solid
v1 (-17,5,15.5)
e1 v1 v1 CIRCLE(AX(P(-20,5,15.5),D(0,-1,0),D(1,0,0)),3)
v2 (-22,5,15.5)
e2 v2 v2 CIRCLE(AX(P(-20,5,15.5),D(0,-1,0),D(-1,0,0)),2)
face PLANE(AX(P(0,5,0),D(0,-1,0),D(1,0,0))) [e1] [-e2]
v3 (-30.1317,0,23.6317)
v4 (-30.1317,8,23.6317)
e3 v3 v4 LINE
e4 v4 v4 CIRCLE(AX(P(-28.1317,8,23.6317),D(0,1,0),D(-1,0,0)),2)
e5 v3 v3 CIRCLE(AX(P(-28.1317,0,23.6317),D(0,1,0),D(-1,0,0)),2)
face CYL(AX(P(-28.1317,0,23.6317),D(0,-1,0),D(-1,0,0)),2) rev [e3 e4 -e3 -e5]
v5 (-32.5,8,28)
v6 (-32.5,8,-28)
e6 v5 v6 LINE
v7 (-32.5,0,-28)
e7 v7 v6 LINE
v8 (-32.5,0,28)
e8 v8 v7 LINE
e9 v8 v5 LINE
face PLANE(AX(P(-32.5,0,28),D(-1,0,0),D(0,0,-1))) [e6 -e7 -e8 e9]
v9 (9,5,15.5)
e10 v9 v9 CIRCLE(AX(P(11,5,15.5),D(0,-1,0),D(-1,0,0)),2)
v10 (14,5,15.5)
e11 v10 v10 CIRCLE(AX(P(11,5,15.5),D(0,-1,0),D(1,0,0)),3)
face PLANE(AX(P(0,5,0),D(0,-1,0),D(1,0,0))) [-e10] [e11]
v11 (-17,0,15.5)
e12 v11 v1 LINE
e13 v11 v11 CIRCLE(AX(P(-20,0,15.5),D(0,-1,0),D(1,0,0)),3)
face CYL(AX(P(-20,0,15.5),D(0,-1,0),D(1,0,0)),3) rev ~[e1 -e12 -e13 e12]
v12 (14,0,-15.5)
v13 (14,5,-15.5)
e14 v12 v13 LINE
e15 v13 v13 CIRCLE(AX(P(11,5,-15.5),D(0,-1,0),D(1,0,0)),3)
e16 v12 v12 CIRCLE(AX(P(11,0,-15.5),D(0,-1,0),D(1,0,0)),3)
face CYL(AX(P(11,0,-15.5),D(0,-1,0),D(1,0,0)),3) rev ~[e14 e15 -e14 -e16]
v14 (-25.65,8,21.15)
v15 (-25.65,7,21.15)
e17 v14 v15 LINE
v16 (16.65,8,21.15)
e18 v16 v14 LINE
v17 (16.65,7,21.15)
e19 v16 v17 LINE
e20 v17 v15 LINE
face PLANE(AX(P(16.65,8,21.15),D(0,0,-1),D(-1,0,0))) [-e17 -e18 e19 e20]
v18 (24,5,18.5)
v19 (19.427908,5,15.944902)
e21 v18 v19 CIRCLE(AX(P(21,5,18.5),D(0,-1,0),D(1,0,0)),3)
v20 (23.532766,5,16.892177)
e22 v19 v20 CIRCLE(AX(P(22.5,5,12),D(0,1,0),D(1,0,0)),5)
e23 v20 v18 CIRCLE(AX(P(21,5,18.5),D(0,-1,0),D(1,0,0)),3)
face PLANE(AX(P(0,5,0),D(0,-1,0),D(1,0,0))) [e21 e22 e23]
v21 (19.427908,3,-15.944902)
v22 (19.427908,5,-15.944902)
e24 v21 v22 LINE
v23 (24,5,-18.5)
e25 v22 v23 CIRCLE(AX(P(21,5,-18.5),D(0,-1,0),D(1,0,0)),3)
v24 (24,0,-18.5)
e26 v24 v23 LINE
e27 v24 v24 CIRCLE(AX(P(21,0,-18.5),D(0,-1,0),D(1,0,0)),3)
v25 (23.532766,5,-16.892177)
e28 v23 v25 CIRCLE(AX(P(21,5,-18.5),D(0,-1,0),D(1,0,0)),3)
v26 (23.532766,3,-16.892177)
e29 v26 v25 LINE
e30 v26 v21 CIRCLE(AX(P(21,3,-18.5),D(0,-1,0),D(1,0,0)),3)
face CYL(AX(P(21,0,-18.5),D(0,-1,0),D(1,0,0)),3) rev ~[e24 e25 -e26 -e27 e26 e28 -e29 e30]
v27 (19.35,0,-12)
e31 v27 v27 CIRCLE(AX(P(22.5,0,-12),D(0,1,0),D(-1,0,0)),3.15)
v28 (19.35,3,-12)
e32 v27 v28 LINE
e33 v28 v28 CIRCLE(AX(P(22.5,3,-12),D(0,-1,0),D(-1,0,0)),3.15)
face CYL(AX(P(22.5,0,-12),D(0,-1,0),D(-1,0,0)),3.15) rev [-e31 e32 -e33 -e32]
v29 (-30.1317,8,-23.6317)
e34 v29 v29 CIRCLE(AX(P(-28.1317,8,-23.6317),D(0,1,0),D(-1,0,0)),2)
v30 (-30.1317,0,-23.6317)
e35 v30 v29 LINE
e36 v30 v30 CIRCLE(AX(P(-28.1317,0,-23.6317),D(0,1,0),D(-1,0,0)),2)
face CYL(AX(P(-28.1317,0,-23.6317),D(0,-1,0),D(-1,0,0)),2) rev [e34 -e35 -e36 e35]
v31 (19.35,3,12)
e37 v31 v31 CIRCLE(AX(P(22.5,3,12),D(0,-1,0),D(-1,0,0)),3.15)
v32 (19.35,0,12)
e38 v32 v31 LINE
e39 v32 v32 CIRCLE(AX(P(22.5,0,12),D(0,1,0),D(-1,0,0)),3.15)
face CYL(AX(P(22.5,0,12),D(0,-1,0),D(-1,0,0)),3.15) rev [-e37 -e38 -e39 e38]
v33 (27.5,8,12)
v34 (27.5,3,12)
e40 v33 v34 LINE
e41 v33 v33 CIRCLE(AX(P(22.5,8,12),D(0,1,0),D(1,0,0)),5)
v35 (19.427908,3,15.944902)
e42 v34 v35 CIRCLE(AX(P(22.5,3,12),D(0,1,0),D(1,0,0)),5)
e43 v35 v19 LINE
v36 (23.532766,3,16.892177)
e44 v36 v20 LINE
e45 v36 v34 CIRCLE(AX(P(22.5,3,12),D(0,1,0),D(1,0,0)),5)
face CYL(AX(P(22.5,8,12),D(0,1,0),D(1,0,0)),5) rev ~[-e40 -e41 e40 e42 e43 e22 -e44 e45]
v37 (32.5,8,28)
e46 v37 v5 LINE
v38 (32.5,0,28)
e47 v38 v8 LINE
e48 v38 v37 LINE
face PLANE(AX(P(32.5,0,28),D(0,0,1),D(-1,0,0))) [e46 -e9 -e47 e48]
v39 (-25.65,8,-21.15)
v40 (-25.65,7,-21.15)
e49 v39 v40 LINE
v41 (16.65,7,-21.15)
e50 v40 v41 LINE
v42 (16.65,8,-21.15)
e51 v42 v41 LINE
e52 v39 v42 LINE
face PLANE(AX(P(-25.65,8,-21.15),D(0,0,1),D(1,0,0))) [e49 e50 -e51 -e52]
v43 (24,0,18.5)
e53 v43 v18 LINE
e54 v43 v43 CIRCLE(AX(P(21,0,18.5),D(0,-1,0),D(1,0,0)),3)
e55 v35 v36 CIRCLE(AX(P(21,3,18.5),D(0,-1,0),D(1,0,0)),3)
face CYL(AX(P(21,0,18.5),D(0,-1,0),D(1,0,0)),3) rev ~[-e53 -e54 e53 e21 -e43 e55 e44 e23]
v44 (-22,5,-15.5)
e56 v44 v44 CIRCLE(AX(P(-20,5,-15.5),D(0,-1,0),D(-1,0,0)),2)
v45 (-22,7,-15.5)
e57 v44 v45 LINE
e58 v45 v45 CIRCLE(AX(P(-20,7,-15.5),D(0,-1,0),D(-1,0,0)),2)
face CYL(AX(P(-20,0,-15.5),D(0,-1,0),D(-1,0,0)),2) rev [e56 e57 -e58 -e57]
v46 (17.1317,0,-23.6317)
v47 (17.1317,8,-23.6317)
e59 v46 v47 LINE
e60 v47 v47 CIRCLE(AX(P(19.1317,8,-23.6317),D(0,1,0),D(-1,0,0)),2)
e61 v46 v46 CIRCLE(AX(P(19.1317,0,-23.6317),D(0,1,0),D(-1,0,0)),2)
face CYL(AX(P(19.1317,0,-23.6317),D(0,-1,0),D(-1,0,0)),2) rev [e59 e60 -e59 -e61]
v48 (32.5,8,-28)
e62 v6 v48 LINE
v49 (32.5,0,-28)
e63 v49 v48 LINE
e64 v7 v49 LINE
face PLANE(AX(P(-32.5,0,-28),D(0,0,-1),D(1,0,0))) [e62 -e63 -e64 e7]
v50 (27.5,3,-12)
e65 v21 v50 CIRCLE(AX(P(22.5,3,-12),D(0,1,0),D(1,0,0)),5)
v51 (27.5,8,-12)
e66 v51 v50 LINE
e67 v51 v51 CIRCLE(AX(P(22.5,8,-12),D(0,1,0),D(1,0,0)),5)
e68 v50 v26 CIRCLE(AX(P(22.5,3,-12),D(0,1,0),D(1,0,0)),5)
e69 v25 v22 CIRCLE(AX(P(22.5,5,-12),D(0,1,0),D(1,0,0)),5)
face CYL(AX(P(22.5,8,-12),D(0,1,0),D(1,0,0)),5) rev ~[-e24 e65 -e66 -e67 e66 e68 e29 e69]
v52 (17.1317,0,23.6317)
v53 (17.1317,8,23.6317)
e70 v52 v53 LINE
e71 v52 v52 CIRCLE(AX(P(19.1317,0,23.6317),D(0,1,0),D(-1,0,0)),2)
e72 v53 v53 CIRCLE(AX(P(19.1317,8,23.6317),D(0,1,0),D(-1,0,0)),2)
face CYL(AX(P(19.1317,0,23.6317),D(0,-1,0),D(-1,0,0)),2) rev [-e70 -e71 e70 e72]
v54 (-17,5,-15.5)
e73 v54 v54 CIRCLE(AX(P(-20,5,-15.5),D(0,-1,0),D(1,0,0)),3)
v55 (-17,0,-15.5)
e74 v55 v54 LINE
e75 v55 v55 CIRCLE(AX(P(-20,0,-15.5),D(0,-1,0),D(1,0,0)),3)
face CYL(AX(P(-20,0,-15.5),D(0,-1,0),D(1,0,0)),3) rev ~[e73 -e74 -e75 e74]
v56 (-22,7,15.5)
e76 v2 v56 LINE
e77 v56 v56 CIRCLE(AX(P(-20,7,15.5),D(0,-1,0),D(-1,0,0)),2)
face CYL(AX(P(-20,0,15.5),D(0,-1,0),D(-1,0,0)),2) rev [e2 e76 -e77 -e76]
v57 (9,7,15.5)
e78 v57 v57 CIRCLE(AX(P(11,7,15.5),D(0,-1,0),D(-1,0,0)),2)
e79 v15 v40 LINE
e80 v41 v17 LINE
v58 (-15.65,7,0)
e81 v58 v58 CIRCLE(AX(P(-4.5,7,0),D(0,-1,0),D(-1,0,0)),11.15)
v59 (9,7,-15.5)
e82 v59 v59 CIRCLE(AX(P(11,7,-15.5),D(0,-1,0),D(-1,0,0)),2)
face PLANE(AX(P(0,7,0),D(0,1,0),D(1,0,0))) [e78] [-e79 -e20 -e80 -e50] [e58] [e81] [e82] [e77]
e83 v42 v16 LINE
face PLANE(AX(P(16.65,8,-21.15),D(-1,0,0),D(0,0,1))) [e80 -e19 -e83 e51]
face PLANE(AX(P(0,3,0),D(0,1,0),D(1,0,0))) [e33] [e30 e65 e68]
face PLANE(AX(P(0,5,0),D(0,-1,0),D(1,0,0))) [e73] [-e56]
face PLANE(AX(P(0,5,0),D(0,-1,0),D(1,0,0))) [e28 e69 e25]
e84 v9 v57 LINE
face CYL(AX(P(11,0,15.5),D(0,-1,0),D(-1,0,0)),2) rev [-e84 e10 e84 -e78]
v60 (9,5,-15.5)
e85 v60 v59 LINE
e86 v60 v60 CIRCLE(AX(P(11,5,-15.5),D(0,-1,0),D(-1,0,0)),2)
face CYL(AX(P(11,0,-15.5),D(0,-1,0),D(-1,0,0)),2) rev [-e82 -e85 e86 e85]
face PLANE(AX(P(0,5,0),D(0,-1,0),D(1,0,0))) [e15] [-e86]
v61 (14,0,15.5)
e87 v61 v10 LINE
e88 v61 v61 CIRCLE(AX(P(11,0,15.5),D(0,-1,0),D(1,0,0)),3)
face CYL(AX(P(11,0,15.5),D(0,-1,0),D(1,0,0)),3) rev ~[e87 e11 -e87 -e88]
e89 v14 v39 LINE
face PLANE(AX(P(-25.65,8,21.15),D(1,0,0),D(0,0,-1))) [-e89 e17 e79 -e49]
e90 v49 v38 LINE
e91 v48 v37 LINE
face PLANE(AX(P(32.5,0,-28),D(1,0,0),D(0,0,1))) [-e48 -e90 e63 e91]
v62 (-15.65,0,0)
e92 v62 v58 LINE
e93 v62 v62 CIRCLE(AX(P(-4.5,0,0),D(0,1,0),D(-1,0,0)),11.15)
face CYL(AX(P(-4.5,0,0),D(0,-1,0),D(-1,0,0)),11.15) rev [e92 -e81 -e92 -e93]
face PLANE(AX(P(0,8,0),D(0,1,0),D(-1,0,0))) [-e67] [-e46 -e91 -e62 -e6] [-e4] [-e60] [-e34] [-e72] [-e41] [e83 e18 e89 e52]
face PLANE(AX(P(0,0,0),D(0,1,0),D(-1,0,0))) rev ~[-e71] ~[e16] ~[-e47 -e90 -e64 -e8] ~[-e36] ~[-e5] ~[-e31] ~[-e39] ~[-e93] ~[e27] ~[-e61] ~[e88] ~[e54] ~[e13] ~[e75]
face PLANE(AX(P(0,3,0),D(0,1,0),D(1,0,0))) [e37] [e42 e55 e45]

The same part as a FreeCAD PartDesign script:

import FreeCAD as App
import Part
import Sketcher


def add_polygon(sketch, points):
    """Adds a closed chain of lines whose ends are joined by coincident constraints."""
    first, n = sketch.GeometryCount, len(points)
    for a, b in zip(points, points[1:] + points[:1]):
        sketch.addGeometry(Part.LineSegment(App.Vector(*a, 0), App.Vector(*b, 0)), False)
    for i in range(n):
        sketch.addConstraint(Sketcher.Constraint("Coincident", first + i, 2, first + (i + 1) % n, 1))

doc = App.newDocument("Part")
body = doc.addObject("PartDesign::Body", "Body")

# Sketch on XZ plane
sketch1 = doc.addObject("Sketcher::SketchObject", "Sketch")
body.addObject(sketch1)
sketch1.AttachmentSupport = (doc.XZ_Plane, [""])
sketch1.MapMode = "FlatFace"
add_polygon(sketch1, [(-32.5, 28), (32.5, 28), (32.5, -28), (-32.5, -28)])  # lines 0-3
sketch1.addGeometry(Part.Circle(App.Vector(19.1317, -23.6317, 0), App.Vector(0, 0, 1), 2), False)  # 4
sketch1.addGeometry(Part.Circle(App.Vector(11, -15.5, 0), App.Vector(0, 0, 1), 2), False)  # 5
sketch1.addGeometry(Part.Circle(App.Vector(22.5, -12, 0), App.Vector(0, 0, 1), 3.15), False)  # 6
sketch1.addGeometry(Part.Circle(App.Vector(-28.1317, -23.6317, 0), App.Vector(0, 0, 1), 2), False)  # 7
sketch1.addGeometry(Part.Circle(App.Vector(-20, -15.5, 0), App.Vector(0, 0, 1), 2), False)  # 8
sketch1.addGeometry(Part.Circle(App.Vector(22.5, 12, 0), App.Vector(0, 0, 1), 3.15), False)  # 9
sketch1.addGeometry(Part.Circle(App.Vector(19.1317, 23.6317, 0), App.Vector(0, 0, 1), 2), False)  # 10
sketch1.addGeometry(Part.Circle(App.Vector(11, 15.5, 0), App.Vector(0, 0, 1), 2), False)  # 11
sketch1.addGeometry(Part.Circle(App.Vector(-4.5, 0, 0), App.Vector(0, 0, 1), 11.15), False)  # 12
sketch1.addGeometry(Part.Circle(App.Vector(-20, 15.5, 0), App.Vector(0, 0, 1), 2), False)  # 13
sketch1.addGeometry(Part.Circle(App.Vector(-28.1317, 23.6317, 0), App.Vector(0, 0, 1), 2), False)  # 14
sketch1.addConstraint([
    Sketcher.Constraint("Horizontal", 0),
    Sketcher.Constraint("Vertical", 1),
    Sketcher.Constraint("Horizontal", 2),
    Sketcher.Constraint("Vertical", 3),
    Sketcher.Constraint("Equal", 4, 5),
    Sketcher.Constraint("Equal", 5, 7),
    Sketcher.Constraint("Equal", 7, 8),
    Sketcher.Constraint("Equal", 6, 9),
    Sketcher.Constraint("Equal", 8, 10),
    Sketcher.Constraint("Equal", 10, 11),
    Sketcher.Constraint("Equal", 11, 13),
    Sketcher.Constraint("Equal", 13, 14),
    Sketcher.Constraint("Symmetric", 0, 2, 2, 2, -1, 1),
    Sketcher.Constraint("Symmetric", 6, 3, 9, 3, -1),
    Sketcher.Constraint("Symmetric", 4, 3, 10, 3, -1),
    Sketcher.Constraint("Symmetric", 5, 3, 11, 3, -1),
    Sketcher.Constraint("Symmetric", 8, 3, 13, 3, -1),
    Sketcher.Constraint("Symmetric", 7, 3, 14, 3, -1),
    Sketcher.Constraint("PointOnObject", 12, 3, -1),
    Sketcher.Constraint("Horizontal", 4, 3, 7, 3),
    Sketcher.Constraint("Horizontal", 5, 3, 8, 3),
    Sketcher.Constraint("Diameter", 4, 4.0),
    Sketcher.Constraint("Diameter", 6, 6.3),
    Sketcher.Constraint("Diameter", 12, 22.3),
    Sketcher.Constraint("DistanceX", 0, 1, 0, 2, 65.0),
    Sketcher.Constraint("DistanceY", 1, 2, 1, 1, 56.0),
    Sketcher.Constraint("DistanceX", 8, 3, 5, 3, 31.0),
    Sketcher.Constraint("DistanceY", 5, 3, 11, 3, 31.0),
    Sketcher.Constraint("DistanceX", 9, 3, 0, 2, 10.0),
    Sketcher.Constraint("DistanceY", 9, 3, 0, 2, 16.0),
    Sketcher.Constraint("DistanceX", 2, 2, 12, 3, 28.0),
    Sketcher.Constraint("DistanceX", 5, 3, 6, 3, 11.5),
    Sketcher.Constraint("DistanceX", -1, 1, 4, 3, 19.1317),
    Sketcher.Constraint("DistanceY", 4, 3, -1, 1, 23.6317),
    Sketcher.Constraint("DistanceX", 7, 3, -1, 1, 28.1317),
])
pad1 = doc.addObject("PartDesign::Pad", "Pad")
body.addObject(pad1)
pad1.Profile = sketch1
pad1.Length = 8
pad1.Reversed = True

# Sketch on XZ plane
sketch2 = doc.addObject("Sketcher::SketchObject", "Sketch001")
body.addObject(sketch2)
sketch2.AttachmentSupport = (doc.XZ_Plane, [""])
sketch2.MapMode = "FlatFace"
sketch2.AttachmentOffset = App.Placement(App.Vector(0, 0, -8), App.Rotation())
add_polygon(sketch2, [(-25.65, 21.15), (16.65, 21.15), (16.65, -21.15), (-25.65, -21.15)])  # lines 0-3
sketch2.addConstraint([
    Sketcher.Constraint("Horizontal", 0),
    Sketcher.Constraint("Vertical", 1),
    Sketcher.Constraint("Horizontal", 2),
    Sketcher.Constraint("Vertical", 3),
    Sketcher.Constraint("Equal", 2, 1),
    Sketcher.Constraint("DistanceX", 0, 1, 0, 2, 42.3),
    Sketcher.Constraint("DistanceX", -1, 1, 0, 2, 16.65),
    Sketcher.Constraint("DistanceY", -1, 1, 0, 2, 21.15),
])
pocket1 = doc.addObject("PartDesign::Pocket", "Pocket")
body.addObject(pocket1)
pocket1.Profile = sketch2
pocket1.Length = 1
pocket1.Reversed = True

# Sketch on XZ plane
sketch3 = doc.addObject("Sketcher::SketchObject", "Sketch002")
body.addObject(sketch3)
sketch3.AttachmentSupport = (doc.XZ_Plane, [""])
sketch3.MapMode = "FlatFace"
sketch3.AttachmentOffset = App.Placement(App.Vector(0, 0, -8), App.Rotation())
sketch3.addGeometry([
    Part.Circle(App.Vector(22.5, 12, 0), App.Vector(0, 0, 1), 5),
    Part.Circle(App.Vector(22.5, -12, 0), App.Vector(0, 0, 1), 5),
], False)
sketch3.addConstraint([
    Sketcher.Constraint("Equal", 0, 1),
    Sketcher.Constraint("Symmetric", 0, 3, 1, 3, -1),
    Sketcher.Constraint("Diameter", 0, 10.0),
    Sketcher.Constraint("DistanceY", -1, 1, 0, 3, 12.0),
    Sketcher.Constraint("DistanceX", -1, 1, 0, 3, 22.5),
])
pocket2 = doc.addObject("PartDesign::Pocket", "Pocket001")
body.addObject(pocket2)
pocket2.Profile = sketch3
pocket2.Length = 5
pocket2.Reversed = True

# Sketch on XZ plane
sketch4 = doc.addObject("Sketcher::SketchObject", "Sketch003")
body.addObject(sketch4)
sketch4.AttachmentSupport = (doc.XZ_Plane, [""])
sketch4.MapMode = "FlatFace"
sketch4.addGeometry([
    Part.Circle(App.Vector(-20, 15.5, 0), App.Vector(0, 0, 1), 3),  # 0
    Part.Circle(App.Vector(11, 15.5, 0), App.Vector(0, 0, 1), 3),  # 1
    Part.Circle(App.Vector(11, -15.5, 0), App.Vector(0, 0, 1), 3),  # 2
    Part.Circle(App.Vector(-20, -15.5, 0), App.Vector(0, 0, 1), 3),  # 3
    Part.Circle(App.Vector(21, 18.5, 0), App.Vector(0, 0, 1), 3),  # 4
    Part.Circle(App.Vector(21, -18.5, 0), App.Vector(0, 0, 1), 3),  # 5
], False)
sketch4.addConstraint([
    Sketcher.Constraint("Equal", 0, 1),
    Sketcher.Constraint("Equal", 1, 2),
    Sketcher.Constraint("Equal", 2, 3),
    Sketcher.Constraint("Equal", 3, 4),
    Sketcher.Constraint("Equal", 4, 5),
    Sketcher.Constraint("Symmetric", 1, 3, 2, 3, -1),
    Sketcher.Constraint("Symmetric", 0, 3, 3, 3, -1),
    Sketcher.Constraint("Symmetric", 4, 3, 5, 3, -1),
    Sketcher.Constraint("Horizontal", 0, 3, 1, 3),
    Sketcher.Constraint("Diameter", 0, 6.0),
    Sketcher.Constraint("DistanceX", 0, 3, -1, 1, 20.0),
    Sketcher.Constraint("DistanceX", -1, 1, 1, 3, 11.0),
    Sketcher.Constraint("DistanceX", -1, 1, 4, 3, 21.0),
    Sketcher.Constraint("DistanceY", 2, 3, 1, 3, 31.0),
    Sketcher.Constraint("DistanceY", 1, 3, 4, 3, 3.0),
])
pocket3 = doc.addObject("PartDesign::Pocket", "Pocket002")
body.addObject(pocket3)
pocket3.Profile = sketch4
pocket3.Length = 5

doc.recompute()
